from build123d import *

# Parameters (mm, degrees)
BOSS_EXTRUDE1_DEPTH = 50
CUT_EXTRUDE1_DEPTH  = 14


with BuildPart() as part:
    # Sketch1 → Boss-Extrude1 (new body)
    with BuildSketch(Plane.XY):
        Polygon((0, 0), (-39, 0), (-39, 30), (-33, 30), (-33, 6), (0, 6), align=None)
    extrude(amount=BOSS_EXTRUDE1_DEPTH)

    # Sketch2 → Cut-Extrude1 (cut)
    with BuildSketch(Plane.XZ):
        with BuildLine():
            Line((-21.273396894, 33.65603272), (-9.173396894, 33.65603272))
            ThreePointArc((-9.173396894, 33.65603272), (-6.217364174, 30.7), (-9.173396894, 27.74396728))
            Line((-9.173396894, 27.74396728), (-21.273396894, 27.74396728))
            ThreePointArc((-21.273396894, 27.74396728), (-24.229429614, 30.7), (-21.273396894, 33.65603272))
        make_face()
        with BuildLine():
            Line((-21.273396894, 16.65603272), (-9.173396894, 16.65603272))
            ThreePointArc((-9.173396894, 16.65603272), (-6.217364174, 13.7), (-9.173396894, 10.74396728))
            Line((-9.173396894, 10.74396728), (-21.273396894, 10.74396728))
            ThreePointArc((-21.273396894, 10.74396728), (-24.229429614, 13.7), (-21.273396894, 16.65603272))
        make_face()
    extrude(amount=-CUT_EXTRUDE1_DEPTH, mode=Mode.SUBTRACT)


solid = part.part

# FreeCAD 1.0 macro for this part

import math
import FreeCAD as App
import Part
import Sketcher

doc = App.newDocument("Part")
body = doc.addObject("PartDesign::Body", "Body")

# Sketch on XY plane
sketch1 = body.newObject("Sketcher::SketchObject", "Sketch")
sketch1.AttachmentSupport = (doc.getObject("XY_Plane"), [""])
sketch1.MapMode = "FlatFace"
sketch1.addGeometry([
    Part.LineSegment(App.Vector(-39, 0, 0), App.Vector(0, 0, 0)),  # 0
    Part.LineSegment(App.Vector(0, 0, 0), App.Vector(0, 6, 0)),  # 1
    Part.LineSegment(App.Vector(0, 6, 0), App.Vector(-33, 6, 0)),  # 2
    Part.LineSegment(App.Vector(-33, 6, 0), App.Vector(-33, 30, 0)),  # 3
    Part.LineSegment(App.Vector(-33, 30, 0), App.Vector(-39, 30, 0)),  # 4
    Part.LineSegment(App.Vector(-39, 30, 0), App.Vector(-39, 0, 0)),  # 5
], False)
sketch1.addConstraint([
    Sketcher.Constraint("Coincident", 0, 2, 1, 1),
    Sketcher.Constraint("Coincident", 1, 2, 2, 1),
    Sketcher.Constraint("Coincident", 2, 2, 3, 1),
    Sketcher.Constraint("Coincident", 3, 2, 4, 1),
    Sketcher.Constraint("Coincident", 4, 2, 5, 1),
    Sketcher.Constraint("Coincident", 5, 2, 0, 1),
    Sketcher.Constraint("Horizontal", 0),
    Sketcher.Constraint("Vertical", 1),
    Sketcher.Constraint("Horizontal", 2),
    Sketcher.Constraint("Vertical", 3),
    Sketcher.Constraint("Horizontal", 4),
    Sketcher.Constraint("Vertical", 5),
    Sketcher.Constraint("Coincident", 0, 2, -1, 1),
    Sketcher.Constraint("Equal", 4, 1),
    Sketcher.Constraint("DistanceX", 0, 1, 0, 2, 39.0),
    Sketcher.Constraint("DistanceX", 2, 2, 2, 1, 33.0),
    Sketcher.Constraint("DistanceY", 3, 1, 3, 2, 24.0),
])
pad1 = body.newObject("PartDesign::Pad", "Pad")
pad1.Profile = sketch1
pad1.Length = 50

# Sketch on XZ plane
sketch2 = body.newObject("Sketcher::SketchObject", "Sketch001")
sketch2.AttachmentSupport = (doc.getObject("XZ_Plane"), [""])
sketch2.MapMode = "FlatFace"
sketch2.addGeometry([
    Part.LineSegment(App.Vector(-9.173397, 33.656033, 0), App.Vector(-21.273397, 33.656033, 0)),  # 0
    Part.ArcOfCircle(Part.Circle(App.Vector(-21.273397, 30.7, 0), App.Vector(0, 0, 1), 2.956033), math.radians(90), math.radians(270)),  # 1
    Part.LineSegment(App.Vector(-21.273397, 27.743967, 0), App.Vector(-9.173397, 27.743967, 0)),  # 2
    Part.ArcOfCircle(Part.Circle(App.Vector(-9.173397, 30.7, 0), App.Vector(0, 0, 1), 2.956033), math.radians(-90), math.radians(90)),  # 3
    Part.LineSegment(App.Vector(-9.173397, 16.656033, 0), App.Vector(-21.273397, 16.656033, 0)),  # 4
    Part.ArcOfCircle(Part.Circle(App.Vector(-21.273397, 13.7, 0), App.Vector(0, 0, 1), 2.956033), math.radians(90), math.radians(270)),  # 5
    Part.LineSegment(App.Vector(-21.273397, 10.743967, 0), App.Vector(-9.173397, 10.743967, 0)),  # 6
    Part.ArcOfCircle(Part.Circle(App.Vector(-9.173397, 13.7, 0), App.Vector(0, 0, 1), 2.956033), math.radians(-90), math.radians(90)),  # 7
], False)
sketch2.addConstraint([
    Sketcher.Constraint("Tangent", 0, 2, 1, 1),
    Sketcher.Constraint("Tangent", 1, 2, 2, 1),
    Sketcher.Constraint("Tangent", 2, 2, 3, 1),
    Sketcher.Constraint("Tangent", 3, 2, 0, 1),
    Sketcher.Constraint("Tangent", 4, 2, 5, 1),
    Sketcher.Constraint("Tangent", 5, 2, 6, 1),
    Sketcher.Constraint("Tangent", 6, 2, 7, 1),
    Sketcher.Constraint("Tangent", 7, 2, 4, 1),
    Sketcher.Constraint("Horizontal", 0),
    Sketcher.Constraint("Horizontal", 2),
    Sketcher.Constraint("Horizontal", 4),
    Sketcher.Constraint("Horizontal", 6),
    Sketcher.Constraint("Equal", 3, 5),
    Sketcher.Constraint("Vertical", 1, 3, 5, 3),
    Sketcher.Constraint("Vertical", 3, 3, 7, 3),
    Sketcher.Constraint("DistanceX", 0, 2, 0, 1, 12.1),
    Sketcher.Constraint("DistanceY", 5, 3, 1, 3, 17.0),
    Sketcher.Constraint("DistanceY", -1, 1, 1, 3, 30.7),
    Sketcher.Constraint("Radius", 1, 2.956033),
    Sketcher.Constraint("DistanceX", 1, 3, -1, 1, 21.273397),
])
pocket1 = body.newObject("PartDesign::Pocket", "Pocket")
pocket1.Profile = sketch2
pocket1.Length = 14

doc.recompute()
